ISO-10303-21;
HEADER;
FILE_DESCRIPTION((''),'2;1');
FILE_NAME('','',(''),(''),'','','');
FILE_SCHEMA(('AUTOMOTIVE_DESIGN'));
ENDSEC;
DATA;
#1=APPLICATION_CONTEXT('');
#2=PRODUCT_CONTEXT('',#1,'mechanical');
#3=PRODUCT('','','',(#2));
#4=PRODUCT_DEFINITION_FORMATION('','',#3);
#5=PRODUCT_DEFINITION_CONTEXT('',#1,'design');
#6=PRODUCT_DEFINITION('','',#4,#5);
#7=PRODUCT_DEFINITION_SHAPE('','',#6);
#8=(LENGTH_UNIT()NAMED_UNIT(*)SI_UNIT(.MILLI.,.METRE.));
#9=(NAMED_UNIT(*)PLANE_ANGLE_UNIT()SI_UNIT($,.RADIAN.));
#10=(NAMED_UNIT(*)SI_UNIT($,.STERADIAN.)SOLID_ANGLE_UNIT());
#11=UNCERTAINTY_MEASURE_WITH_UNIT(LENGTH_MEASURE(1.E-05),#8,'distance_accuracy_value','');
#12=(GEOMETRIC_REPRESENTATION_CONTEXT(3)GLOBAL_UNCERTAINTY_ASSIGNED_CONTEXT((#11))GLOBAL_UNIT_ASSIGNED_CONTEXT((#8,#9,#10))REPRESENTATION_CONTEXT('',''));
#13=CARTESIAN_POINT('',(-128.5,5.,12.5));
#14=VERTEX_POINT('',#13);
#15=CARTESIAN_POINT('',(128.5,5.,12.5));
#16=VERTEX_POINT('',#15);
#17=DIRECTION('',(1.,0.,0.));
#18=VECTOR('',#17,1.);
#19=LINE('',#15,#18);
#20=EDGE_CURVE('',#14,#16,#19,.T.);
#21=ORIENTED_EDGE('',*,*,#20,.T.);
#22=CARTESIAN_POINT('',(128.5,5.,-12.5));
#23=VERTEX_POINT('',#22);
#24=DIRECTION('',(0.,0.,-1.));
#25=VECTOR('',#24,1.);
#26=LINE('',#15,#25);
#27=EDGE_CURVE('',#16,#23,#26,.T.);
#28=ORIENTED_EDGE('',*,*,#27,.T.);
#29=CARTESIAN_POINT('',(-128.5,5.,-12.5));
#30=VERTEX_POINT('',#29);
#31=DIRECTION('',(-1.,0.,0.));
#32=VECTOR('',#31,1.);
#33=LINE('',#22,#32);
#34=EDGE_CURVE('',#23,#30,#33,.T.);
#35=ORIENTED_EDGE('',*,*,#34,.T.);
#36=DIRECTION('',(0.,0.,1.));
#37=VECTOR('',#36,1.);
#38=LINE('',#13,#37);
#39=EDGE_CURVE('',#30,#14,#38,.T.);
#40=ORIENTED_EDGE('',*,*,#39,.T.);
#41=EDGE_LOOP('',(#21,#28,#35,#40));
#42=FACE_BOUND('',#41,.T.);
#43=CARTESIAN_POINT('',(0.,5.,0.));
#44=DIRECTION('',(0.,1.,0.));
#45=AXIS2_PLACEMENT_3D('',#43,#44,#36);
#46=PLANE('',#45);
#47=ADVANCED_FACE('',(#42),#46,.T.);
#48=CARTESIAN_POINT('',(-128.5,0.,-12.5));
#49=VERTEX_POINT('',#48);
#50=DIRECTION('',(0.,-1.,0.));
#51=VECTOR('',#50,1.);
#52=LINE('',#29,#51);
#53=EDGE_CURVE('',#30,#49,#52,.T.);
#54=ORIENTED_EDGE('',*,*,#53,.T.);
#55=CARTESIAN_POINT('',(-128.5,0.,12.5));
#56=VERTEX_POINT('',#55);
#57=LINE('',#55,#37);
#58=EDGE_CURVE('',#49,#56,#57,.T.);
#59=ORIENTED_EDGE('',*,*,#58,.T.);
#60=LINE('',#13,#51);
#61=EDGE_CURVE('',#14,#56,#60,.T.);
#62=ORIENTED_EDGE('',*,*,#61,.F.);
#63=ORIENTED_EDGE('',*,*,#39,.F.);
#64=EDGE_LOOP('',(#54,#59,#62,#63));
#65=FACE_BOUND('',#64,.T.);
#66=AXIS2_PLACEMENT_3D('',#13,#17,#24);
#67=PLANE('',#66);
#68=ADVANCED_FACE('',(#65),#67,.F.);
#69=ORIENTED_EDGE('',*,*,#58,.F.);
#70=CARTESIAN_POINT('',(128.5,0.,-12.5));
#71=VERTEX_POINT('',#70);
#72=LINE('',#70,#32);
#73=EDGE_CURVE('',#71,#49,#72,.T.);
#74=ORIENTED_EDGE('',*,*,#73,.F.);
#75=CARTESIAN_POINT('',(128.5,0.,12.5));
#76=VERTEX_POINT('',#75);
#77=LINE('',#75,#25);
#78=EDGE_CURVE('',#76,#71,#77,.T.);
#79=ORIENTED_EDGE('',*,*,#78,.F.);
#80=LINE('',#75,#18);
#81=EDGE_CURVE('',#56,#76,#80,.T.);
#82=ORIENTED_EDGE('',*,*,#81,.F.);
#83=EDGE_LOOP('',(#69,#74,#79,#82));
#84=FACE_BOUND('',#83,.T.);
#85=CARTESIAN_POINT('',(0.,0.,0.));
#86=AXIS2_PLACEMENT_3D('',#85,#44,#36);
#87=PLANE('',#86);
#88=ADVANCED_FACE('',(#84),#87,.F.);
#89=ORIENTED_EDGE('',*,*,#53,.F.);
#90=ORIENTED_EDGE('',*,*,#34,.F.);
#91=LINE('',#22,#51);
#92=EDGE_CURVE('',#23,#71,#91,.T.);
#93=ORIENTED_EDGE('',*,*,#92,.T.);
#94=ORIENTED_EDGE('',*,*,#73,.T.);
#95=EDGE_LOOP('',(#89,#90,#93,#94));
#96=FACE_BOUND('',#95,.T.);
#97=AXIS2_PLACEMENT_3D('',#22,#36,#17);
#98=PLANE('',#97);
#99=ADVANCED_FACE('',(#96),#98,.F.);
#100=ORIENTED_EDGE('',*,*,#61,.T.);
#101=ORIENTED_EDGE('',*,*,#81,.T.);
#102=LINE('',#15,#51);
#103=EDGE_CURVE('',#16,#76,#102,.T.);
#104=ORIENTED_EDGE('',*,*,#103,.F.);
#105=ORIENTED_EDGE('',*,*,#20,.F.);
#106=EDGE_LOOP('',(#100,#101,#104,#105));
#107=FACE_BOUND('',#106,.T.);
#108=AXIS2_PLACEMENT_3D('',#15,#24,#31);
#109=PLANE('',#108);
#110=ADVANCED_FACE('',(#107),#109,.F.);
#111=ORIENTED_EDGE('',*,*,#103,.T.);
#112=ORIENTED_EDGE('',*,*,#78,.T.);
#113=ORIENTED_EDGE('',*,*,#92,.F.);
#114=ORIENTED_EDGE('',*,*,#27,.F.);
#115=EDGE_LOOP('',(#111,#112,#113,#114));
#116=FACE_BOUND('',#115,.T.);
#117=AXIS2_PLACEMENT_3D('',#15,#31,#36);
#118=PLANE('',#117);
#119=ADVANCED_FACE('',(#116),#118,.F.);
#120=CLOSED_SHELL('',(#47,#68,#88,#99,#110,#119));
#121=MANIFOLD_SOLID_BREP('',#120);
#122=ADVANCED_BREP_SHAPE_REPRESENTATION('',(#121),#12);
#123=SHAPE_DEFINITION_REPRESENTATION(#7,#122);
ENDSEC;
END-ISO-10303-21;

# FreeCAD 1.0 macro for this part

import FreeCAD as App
import Part
import Sketcher
from FreeCAD import Vector
Q = App.Units.Quantity


def add_polygon(sketch, points):
    """Adds a closed chain of lines whose ends are joined by coincident constraints."""
    first, n = sketch.GeometryCount, len(points)
    for a, b in zip(points, points[1:] + points[:1]):
        sketch.addGeometry(Part.LineSegment(App.Vector(*a, 0), App.Vector(*b, 0)), False)
    for i in range(n):
        sketch.addConstraint(Sketcher.Constraint("Coincident", first + i, 2, first + (i + 1) % n, 1))

doc = App.newDocument("Part")
params = doc.addObject("Spreadsheet::Sheet", "Params")
for row, (alias, value) in enumerate([
    ("sketch1_width", "257 mm"),
    ("sketch1_height", "25 mm"),
    ("pad1_length", "5 mm"),
], start=1):
    params.set(f"A{row}", alias)
    params.set(f"B{row}", "=" + value)
    params.setAlias(f"B{row}", alias)

body = doc.addObject("PartDesign::Body", "Body")

# Sketch on XZ plane
sketch1 = doc.addObject("Sketcher::SketchObject", "Sketch")
body.addObject(sketch1)
sketch1.AttachmentSupport = (doc.XZ_Plane, [""])
sketch1.MapMode = "FlatFace"
add_polygon(sketch1, [(-128, -12), (-128, 12), (128, 12), (128, -12)])  # lines 0-3
sketch1.addConstraint([
    Sketcher.Constraint("Vertical", 0),
    Sketcher.Constraint("Horizontal", 1),
    Sketcher.Constraint("Vertical", 2),
    Sketcher.Constraint("Horizontal", 3),
    Sketcher.Constraint("Symmetric", 0, 2, 2, 2, -1, 1),
    Sketcher.Constraint("DistanceX", 1, 1, 1, 2, Q("257 mm")),
    Sketcher.Constraint("DistanceY", 0, 1, 0, 2, Q("25 mm")),
])
sketch1.setExpression("Constraints[9]", "Params.sketch1_width")
sketch1.setExpression("Constraints[10]", "Params.sketch1_height")
pad1 = doc.addObject("PartDesign::Pad", "Pad")
body.addObject(pad1)
pad1.Profile = sketch1
pad1.setExpression("Length", "Params.pad1_length")
pad1.Reversed = True

doc.recompute()
